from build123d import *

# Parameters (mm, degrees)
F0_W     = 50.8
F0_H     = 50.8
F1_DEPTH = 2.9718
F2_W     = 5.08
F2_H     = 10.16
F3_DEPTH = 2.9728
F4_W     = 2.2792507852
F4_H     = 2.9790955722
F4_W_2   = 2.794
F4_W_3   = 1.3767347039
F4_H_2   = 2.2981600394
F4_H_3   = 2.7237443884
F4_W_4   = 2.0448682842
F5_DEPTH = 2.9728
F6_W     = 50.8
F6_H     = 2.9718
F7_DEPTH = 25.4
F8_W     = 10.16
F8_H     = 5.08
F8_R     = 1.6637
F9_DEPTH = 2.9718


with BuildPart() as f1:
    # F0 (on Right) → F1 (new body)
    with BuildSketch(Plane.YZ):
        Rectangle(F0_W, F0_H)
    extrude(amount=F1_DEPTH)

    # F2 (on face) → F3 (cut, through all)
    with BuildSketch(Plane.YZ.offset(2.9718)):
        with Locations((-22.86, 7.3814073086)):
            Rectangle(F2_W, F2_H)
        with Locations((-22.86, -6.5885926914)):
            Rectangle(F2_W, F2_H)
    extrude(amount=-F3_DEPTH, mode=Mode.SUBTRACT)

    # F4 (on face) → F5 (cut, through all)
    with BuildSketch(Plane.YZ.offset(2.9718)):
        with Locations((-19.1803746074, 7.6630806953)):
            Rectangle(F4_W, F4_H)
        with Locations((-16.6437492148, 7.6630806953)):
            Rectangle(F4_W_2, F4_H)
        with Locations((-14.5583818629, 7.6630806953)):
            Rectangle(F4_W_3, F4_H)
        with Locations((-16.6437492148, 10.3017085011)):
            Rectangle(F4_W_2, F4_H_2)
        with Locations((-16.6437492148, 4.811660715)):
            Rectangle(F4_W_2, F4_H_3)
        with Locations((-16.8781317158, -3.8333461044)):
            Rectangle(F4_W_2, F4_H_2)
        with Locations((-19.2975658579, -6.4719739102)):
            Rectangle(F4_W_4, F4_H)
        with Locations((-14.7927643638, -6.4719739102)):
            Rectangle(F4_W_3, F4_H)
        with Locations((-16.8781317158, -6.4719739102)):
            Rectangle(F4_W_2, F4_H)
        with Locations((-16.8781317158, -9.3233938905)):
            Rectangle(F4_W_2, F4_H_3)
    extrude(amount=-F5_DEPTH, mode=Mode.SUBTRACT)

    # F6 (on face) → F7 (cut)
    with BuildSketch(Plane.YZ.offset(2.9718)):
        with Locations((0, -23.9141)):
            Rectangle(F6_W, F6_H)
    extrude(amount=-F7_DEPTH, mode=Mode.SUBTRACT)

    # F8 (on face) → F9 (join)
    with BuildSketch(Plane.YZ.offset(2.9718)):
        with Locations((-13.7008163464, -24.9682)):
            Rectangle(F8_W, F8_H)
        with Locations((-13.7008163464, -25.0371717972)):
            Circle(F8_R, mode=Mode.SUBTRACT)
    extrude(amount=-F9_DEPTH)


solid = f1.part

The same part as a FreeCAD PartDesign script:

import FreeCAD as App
import Part
import Sketcher

V = App.Vector
Q = App.Units.Quantity


def add_polygon(sketch, points):
    """Adds a closed chain of lines whose ends are joined by coincident constraints."""
    first, n = sketch.GeometryCount, len(points)
    for a, b in zip(points, points[1:] + points[:1]):
        sketch.addGeometry(Part.LineSegment(App.Vector(*a, 0), App.Vector(*b, 0)), False)
    for i in range(n):
        sketch.addConstraint(Sketcher.Constraint("Coincident", first + i, 2, first + (i + 1) % n, 1))

doc = App.newDocument("Part")
params = doc.addObject("Spreadsheet::Sheet", "Params")
for row, (alias, value) in enumerate([
    ("sketch1_width", "2 in"),
    ("pad1_length", "0.117 in"),
    ("sketch2_width", "0.2 in"),
    ("sketch2_height", "0.4 in"),
    ("sketch3_width", "0.11 in"),
    ("sketch4_width", "2 in"),
    ("sketch4_height", "0.117 in"),
    ("pocket3_length", "1 in"),
    ("sketch5_diameter", "0.131 in"),
    ("sketch5_width", "0.4 in"),
    ("sketch5_height", "0.2 in"),
    ("pad2_length", "0.117 in"),
], start=1):
    params.set(f"A{row}", alias)
    params.set(f"B{row}", "=" + value)
    params.setAlias(f"B{row}", alias)

body = doc.addObject("PartDesign::Body", "Body")

# Sketch on YZ plane
sketch1 = body.newObject("Sketcher::SketchObject", "Sketch")
sketch1.AttachmentSupport = (doc.getObject("YZ_Plane"), [""])
sketch1.MapMode = "FlatFace"
add_polygon(sketch1, [(-25, 25), (-25, -25), (25, -25), (25, 25)])  # lines 0-3
sketch1.addConstraint([
    Sketcher.Constraint("Vertical", 0),
    Sketcher.Constraint("Horizontal", 1),
    Sketcher.Constraint("Vertical", 2),
    Sketcher.Constraint("Horizontal", 3),
    Sketcher.Constraint("Symmetric", 0, 2, 2, 2, -1, 1),
    Sketcher.Constraint("Equal", 3, 0),
    Sketcher.Constraint("DistanceX", 1, 1, 1, 2, Q("2 in")),
])
sketch1.setExpression("Constraints[10]", "Params.sketch1_width")
pad1 = body.newObject("PartDesign::Pad", "Pad")
pad1.Profile = sketch1
pad1.setExpression("Length", "Params.pad1_length")

# Sketch on YZ plane
sketch2 = body.newObject("Sketcher::SketchObject", "Sketch001")
sketch2.AttachmentSupport = (doc.getObject("YZ_Plane"), [""])
sketch2.MapMode = "FlatFace"
sketch2.AttachmentOffset = App.Placement(V(0, 0, 0.117 * 25.4), App.Rotation())
add_polygon(sketch2, [(-25, 12), (-25, 2), (-20, 2), (-20, 12)])  # lines 0-3
add_polygon(sketch2, [(-25, -2), (-25, -12), (-20, -12), (-20, -2)])  # lines 4-7
sketch2.addConstraint([
    Sketcher.Constraint("Vertical", 0),
    Sketcher.Constraint("Horizontal", 1),
    Sketcher.Constraint("Vertical", 2),
    Sketcher.Constraint("Horizontal", 3),
    Sketcher.Constraint("Vertical", 4),
    Sketcher.Constraint("Horizontal", 5),
    Sketcher.Constraint("Vertical", 6),
    Sketcher.Constraint("Horizontal", 7),
    Sketcher.Constraint("Vertical", 3, 2, 4, 2),
    Sketcher.Constraint("Vertical", 2, 2, 5, 2),
    Sketcher.Constraint("Equal", 2, 4),
    Sketcher.Constraint("DistanceX", 1, 1, 1, 2, Q("0.2 in")),
    Sketcher.Constraint("DistanceY", 0, 2, 0, 1, Q("0.4 in")),
    Sketcher.Constraint("DistanceX", 0, 2, -1, 1, Q("1 in")),
    Sketcher.Constraint("DistanceY", 4, 2, 0, 2, Q("0.55 in")),
    Sketcher.Constraint("DistanceY", -1, 1, 0, 2, Q("2.301407 mm")),
])
sketch2.setExpression("Constraints[19]", "Params.sketch2_width")
sketch2.setExpression("Constraints[20]", "Params.sketch2_height")
pocket1 = body.newObject("PartDesign::Pocket", "Pocket")
pocket1.Profile = sketch2
pocket1.Type = "ThroughAll"

# Sketch on YZ plane
sketch3 = body.newObject("Sketcher::SketchObject", "Sketch002")
sketch3.AttachmentSupport = (doc.getObject("YZ_Plane"), [""])
sketch3.MapMode = "FlatFace"
sketch3.AttachmentOffset = App.Placement(V(0, 0, 0.117 * 25.4), App.Rotation())
add_polygon(sketch3, [(-20.3, 9.2), (-20.3, 6.2), (-18, 6.2), (-18, 3.4), (-15.2, 3.4), (-15.2, 6.2), (-13.9, 6.2), (-13.9, 9.2), (-15.2, 9.2), (-15.2, 11.5), (-18, 11.5), (-18, 9.2)])  # lines 0-11
add_polygon(sketch3, [(-18.3, -2.7), (-18.3, -5), (-20.3, -5), (-20.3, -8), (-18.3, -8), (-18.3, -10.7), (-15.5, -10.7), (-15.5, -8), (-14.1, -8), (-14.1, -5), (-15.5, -5), (-15.5, -2.7)])  # lines 12-23
sketch3.addConstraint([
    Sketcher.Constraint("Vertical", 0),
    Sketcher.Constraint("Horizontal", 1),
    Sketcher.Constraint("Vertical", 2),
    Sketcher.Constraint("Horizontal", 3),
    Sketcher.Constraint("Vertical", 4),
    Sketcher.Constraint("Horizontal", 5),
    Sketcher.Constraint("Vertical", 6),
    Sketcher.Constraint("Horizontal", 7),
    Sketcher.Constraint("Vertical", 8),
    Sketcher.Constraint("Horizontal", 9),
    Sketcher.Constraint("Vertical", 10),
    Sketcher.Constraint("Horizontal", 11),
    Sketcher.Constraint("Vertical", 12),
    Sketcher.Constraint("Horizontal", 13),
    Sketcher.Constraint("Vertical", 14),
    Sketcher.Constraint("Horizontal", 15),
    Sketcher.Constraint("Vertical", 16),
    Sketcher.Constraint("Horizontal", 17),
    Sketcher.Constraint("Vertical", 18),
    Sketcher.Constraint("Horizontal", 19),
    Sketcher.Constraint("Vertical", 20),
    Sketcher.Constraint("Horizontal", 21),
    Sketcher.Constraint("Vertical", 22),
    Sketcher.Constraint("Horizontal", 23),
    Sketcher.Constraint("Horizontal", 1, 2, 4, 2),
    Sketcher.Constraint("Horizontal", 7, 2, 10, 2),
    Sketcher.Constraint("Horizontal", 15, 2, 18, 2),
    Sketcher.Constraint("Horizontal", 13, 2, 20, 2),
    Sketcher.Constraint("Vertical", 4, 2, 7, 2),
    Sketcher.Constraint("Vertical", 2, 2, 9, 2),
    Sketcher.Constraint("Vertical", 11, 2, 13, 2),
    Sketcher.Constraint("Vertical", 12, 2, 15, 2),
    Sketcher.Constraint("Vertical", 18, 2, 21, 2),
    Sketcher.Constraint("Equal", 9, 17),
    Sketcher.Constraint("Equal", 7, 19),
    Sketcher.Constraint("Equal", 10, 12),
    Sketcher.Constraint("Equal", 6, 14),
    Sketcher.Constraint("Equal", 4, 16),
    Sketcher.Constraint("DistanceX", 3, 1, 3, 2, Q("0.11 in")),
    Sketcher.Constraint("DistanceX", 0, 2, -1, 1, Q("0.8 in")),
    Sketcher.Constraint("DistanceX", 1, 1, 1, 2, Q("2.279251 mm")),
    Sketcher.Constraint("DistanceX", 13, 2, 13, 1, Q("2.044868 mm")),
    Sketcher.Constraint("DistanceY", 8, 1, 8, 2, Q("2.29816 mm")),
    Sketcher.Constraint("DistanceX", 5, 1, 5, 2, Q("1.376735 mm")),
    Sketcher.Constraint("DistanceY", 0, 2, 0, 1, Q("2.979096 mm")),
    Sketcher.Constraint("DistanceY", 2, 2, 2, 1, Q("2.723744 mm")),
    Sketcher.Constraint("DistanceY", -1, 1, 2, 2, Q("3.449789 mm")),
    Sketcher.Constraint("DistanceY", 14, 2, -1, 1, Q("7.961522 mm")),
])
sketch3.setExpression("Constraints[62]", "Params.sketch3_width")
pocket2 = body.newObject("PartDesign::Pocket", "Pocket001")
pocket2.Profile = sketch3
pocket2.Type = "ThroughAll"

# Sketch on YZ plane
sketch4 = body.newObject("Sketcher::SketchObject", "Sketch003")
sketch4.AttachmentSupport = (doc.getObject("YZ_Plane"), [""])
sketch4.MapMode = "FlatFace"
sketch4.AttachmentOffset = App.Placement(V(0, 0, 0.117 * 25.4), App.Rotation())
add_polygon(sketch4, [(-25.4, -22.4), (-25.4, -25.4), (25.4, -25.4), (25.4, -22.4)])  # lines 0-3
sketch4.addConstraint([
    Sketcher.Constraint("Vertical", 0),
    Sketcher.Constraint("Horizontal", 1),
    Sketcher.Constraint("Vertical", 2),
    Sketcher.Constraint("Horizontal", 3),
    Sketcher.Constraint("DistanceX", 1, 1, 1, 2, Q("2 in")),
    Sketcher.Constraint("DistanceX", 0, 2, -1, 1, Q("1 in")),
    Sketcher.Constraint("DistanceY", 0, 2, -1, 1, Q("1 in")),
    Sketcher.Constraint("DistanceY", 0, 2, 0, 1, Q("0.117 in")),
])
sketch4.setExpression("Constraints[8]", "Params.sketch4_width")
sketch4.setExpression("Constraints[11]", "Params.sketch4_height")
pocket3 = body.newObject("PartDesign::Pocket", "Pocket002")
pocket3.Profile = sketch4
pocket3.setExpression("Length", "Params.pocket3_length")

# Sketch on YZ plane
sketch5 = body.newObject("Sketcher::SketchObject", "Sketch004")
sketch5.AttachmentSupport = (doc.getObject("YZ_Plane"), [""])
sketch5.MapMode = "FlatFace"
sketch5.AttachmentOffset = App.Placement(V(0, 0, 0.117 * 25.4), App.Rotation())
add_polygon(sketch5, [(-18.8, -22.4), (-18.8, -27.5), (-8.6, -27.5), (-8.6, -22.4)])  # lines 0-3
sketch5.addGeometry(Part.Circle(V(-13.7, -25, 0), V(0, 0, 1), 1.7), False)  # 4
sketch5.addConstraint([
    Sketcher.Constraint("Vertical", 0),
    Sketcher.Constraint("Horizontal", 1),
    Sketcher.Constraint("Vertical", 2),
    Sketcher.Constraint("Horizontal", 3),
    Sketcher.Constraint("Diameter", 4, Q("0.131 in")),
    Sketcher.Constraint("DistanceX", 1, 1, 1, 2, Q("0.4 in")),
    Sketcher.Constraint("DistanceY", 0, 2, 0, 1, Q("0.2 in")),
    Sketcher.Constraint("DistanceX", 0, 2, 4, 3, Q("0.2 in")),
    Sketcher.Constraint("DistanceY", 0, 2, -1, 1, Q("1.083 in")),
    Sketcher.Constraint("DistanceY", 4, 3, -1, 1, Q("25.037172 mm")),
    Sketcher.Constraint("DistanceX", 4, 3, -1, 1, Q("13.700816 mm")),
])
sketch5.setExpression("Constraints[8]", "Params.sketch5_diameter")
sketch5.setExpression("Constraints[9]", "Params.sketch5_width")
sketch5.setExpression("Constraints[10]", "Params.sketch5_height")
pad2 = body.newObject("PartDesign::Pad", "Pad001")
pad2.Profile = sketch5
pad2.setExpression("Length", "Params.pad2_length")
pad2.Reversed = True

doc.recompute()
